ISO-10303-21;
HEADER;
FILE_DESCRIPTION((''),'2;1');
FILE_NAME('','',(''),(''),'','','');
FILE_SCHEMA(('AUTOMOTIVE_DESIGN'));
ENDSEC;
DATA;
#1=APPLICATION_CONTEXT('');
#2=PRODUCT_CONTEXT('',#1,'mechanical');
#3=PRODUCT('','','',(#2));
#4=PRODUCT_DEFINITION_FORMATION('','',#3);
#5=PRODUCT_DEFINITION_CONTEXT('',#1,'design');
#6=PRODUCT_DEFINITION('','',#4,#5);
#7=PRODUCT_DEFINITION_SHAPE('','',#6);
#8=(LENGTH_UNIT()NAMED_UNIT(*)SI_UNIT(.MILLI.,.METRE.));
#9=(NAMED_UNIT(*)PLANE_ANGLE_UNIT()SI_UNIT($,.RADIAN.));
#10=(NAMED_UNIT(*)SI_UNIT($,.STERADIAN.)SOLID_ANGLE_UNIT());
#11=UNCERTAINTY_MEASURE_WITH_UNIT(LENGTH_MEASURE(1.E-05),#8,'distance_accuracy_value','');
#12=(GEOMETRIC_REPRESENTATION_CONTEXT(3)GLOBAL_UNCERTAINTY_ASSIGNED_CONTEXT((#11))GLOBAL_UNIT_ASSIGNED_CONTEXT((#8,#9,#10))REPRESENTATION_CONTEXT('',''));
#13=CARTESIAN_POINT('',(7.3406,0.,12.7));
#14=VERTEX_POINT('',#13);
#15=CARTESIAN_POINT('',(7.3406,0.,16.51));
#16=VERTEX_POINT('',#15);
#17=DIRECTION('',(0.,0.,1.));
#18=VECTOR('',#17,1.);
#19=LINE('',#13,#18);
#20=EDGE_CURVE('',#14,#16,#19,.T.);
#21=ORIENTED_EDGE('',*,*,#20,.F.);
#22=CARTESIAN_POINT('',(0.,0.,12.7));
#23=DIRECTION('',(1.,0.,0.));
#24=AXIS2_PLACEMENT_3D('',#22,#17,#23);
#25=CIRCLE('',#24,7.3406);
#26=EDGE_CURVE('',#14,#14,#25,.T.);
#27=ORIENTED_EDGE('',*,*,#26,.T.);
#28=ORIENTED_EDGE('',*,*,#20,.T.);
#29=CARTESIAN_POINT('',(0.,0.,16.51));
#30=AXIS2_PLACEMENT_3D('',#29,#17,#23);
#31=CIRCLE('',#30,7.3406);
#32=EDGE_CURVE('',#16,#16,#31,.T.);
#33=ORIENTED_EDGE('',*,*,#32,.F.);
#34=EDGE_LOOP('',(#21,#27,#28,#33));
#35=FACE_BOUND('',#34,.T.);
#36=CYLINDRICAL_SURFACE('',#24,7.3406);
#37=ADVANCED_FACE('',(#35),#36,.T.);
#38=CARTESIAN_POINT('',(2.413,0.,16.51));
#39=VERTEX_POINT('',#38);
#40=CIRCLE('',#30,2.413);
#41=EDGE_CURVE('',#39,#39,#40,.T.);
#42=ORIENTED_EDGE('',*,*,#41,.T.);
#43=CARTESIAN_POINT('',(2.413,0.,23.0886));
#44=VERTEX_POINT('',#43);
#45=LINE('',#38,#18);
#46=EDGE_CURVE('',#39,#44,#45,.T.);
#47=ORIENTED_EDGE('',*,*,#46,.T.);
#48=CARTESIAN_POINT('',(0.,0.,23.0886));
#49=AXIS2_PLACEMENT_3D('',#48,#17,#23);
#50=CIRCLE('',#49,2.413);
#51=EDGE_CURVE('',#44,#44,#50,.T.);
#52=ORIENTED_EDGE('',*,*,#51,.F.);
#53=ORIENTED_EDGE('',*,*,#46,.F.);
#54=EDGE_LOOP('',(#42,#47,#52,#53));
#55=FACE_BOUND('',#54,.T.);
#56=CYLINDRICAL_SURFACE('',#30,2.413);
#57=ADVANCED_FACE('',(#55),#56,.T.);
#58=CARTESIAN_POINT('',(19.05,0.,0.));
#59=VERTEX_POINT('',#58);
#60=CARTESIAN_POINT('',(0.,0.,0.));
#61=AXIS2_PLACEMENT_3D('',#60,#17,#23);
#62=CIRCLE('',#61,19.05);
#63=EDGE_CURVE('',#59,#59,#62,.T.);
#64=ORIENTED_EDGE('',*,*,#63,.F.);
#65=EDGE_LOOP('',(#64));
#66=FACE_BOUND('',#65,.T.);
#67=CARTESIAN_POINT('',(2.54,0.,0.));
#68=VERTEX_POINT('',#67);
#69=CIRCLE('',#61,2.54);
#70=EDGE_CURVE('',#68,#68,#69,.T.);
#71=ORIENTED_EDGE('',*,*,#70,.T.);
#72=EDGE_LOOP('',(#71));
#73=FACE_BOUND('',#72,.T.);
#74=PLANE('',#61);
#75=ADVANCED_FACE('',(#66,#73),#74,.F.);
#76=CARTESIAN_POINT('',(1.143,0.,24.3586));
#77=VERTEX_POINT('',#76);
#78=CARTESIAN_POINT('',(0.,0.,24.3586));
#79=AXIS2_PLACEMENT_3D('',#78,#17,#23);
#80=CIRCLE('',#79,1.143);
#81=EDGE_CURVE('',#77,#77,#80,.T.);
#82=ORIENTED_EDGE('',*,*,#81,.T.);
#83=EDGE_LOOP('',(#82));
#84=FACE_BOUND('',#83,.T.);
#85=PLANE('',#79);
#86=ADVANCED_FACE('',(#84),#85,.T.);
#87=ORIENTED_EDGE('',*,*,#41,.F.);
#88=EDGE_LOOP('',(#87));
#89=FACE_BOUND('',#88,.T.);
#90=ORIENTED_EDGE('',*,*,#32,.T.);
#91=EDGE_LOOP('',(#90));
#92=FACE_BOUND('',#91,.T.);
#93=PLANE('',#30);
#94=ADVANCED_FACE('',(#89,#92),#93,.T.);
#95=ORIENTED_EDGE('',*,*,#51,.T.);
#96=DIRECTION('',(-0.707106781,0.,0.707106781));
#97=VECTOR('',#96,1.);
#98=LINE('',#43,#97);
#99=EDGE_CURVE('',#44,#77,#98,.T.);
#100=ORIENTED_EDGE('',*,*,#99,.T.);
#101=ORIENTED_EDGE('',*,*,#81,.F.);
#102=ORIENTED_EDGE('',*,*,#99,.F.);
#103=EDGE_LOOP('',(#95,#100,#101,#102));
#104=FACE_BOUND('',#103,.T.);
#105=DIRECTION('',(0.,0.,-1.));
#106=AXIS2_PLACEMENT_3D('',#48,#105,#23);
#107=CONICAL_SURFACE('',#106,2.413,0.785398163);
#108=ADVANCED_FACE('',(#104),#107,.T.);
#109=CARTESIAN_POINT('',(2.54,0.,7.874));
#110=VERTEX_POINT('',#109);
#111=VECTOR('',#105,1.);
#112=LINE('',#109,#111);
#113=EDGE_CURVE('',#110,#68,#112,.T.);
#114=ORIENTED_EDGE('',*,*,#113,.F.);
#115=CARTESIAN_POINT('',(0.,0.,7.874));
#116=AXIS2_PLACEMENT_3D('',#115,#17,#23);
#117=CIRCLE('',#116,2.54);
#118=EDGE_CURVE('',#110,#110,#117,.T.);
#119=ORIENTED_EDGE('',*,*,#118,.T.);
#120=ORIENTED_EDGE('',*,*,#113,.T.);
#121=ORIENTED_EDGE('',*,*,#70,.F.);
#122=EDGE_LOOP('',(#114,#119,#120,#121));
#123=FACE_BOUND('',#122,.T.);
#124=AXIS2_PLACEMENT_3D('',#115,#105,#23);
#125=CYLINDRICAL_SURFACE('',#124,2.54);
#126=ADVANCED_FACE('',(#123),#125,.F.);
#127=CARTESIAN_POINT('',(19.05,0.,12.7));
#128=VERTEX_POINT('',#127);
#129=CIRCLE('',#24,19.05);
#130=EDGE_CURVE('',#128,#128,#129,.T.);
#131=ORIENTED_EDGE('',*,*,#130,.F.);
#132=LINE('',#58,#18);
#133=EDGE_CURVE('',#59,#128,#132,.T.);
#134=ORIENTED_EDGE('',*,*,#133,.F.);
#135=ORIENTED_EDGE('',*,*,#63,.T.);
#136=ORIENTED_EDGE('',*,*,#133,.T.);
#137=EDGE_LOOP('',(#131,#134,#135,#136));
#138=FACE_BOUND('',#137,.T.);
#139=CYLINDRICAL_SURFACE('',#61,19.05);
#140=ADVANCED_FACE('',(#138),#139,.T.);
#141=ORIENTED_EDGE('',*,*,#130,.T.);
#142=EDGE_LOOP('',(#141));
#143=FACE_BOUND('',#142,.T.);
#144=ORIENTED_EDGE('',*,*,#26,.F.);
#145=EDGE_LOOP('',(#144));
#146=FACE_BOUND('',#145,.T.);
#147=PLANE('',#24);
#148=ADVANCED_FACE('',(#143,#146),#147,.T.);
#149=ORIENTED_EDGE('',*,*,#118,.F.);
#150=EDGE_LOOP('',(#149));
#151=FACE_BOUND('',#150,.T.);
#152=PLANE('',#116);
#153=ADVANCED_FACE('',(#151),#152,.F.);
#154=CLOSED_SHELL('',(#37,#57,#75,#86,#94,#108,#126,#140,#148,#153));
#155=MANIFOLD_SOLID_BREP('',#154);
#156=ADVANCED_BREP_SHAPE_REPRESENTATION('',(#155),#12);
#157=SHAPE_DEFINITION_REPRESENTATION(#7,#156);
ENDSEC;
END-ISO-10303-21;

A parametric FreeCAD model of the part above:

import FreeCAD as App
import Part
import Sketcher
from FreeCAD import Vector
Q = App.Units.Quantity


def edges_at(feature, points):
    """Names of the edges that pass closest to the given points."""
    edges = feature.Shape.Edges
    near = lambda p: min(range(len(edges)), key=lambda i: edges[i].distToShape(Part.Vertex(*p))[0])
    return sorted({f"Edge{near(p) + 1}" for p in points})


def add_polygon(sketch, points):
    """Adds a closed chain of lines whose ends are joined by coincident constraints."""
    first, n = sketch.GeometryCount, len(points)
    for a, b in zip(points, points[1:] + points[:1]):
        sketch.addGeometry(Part.LineSegment(App.Vector(*a, 0), App.Vector(*b, 0)), False)
    for i in range(n):
        sketch.addConstraint(Sketcher.Constraint("Coincident", first + i, 2, first + (i + 1) % n, 1))

doc = App.newDocument("Part")
body = doc.addObject("PartDesign::Body", "Body")

# Sketch on XZ plane
sketch1 = body.newObject("Sketcher::SketchObject", "Sketch")
sketch1.AttachmentSupport = (doc.getObject("XZ_Plane"), [""])
sketch1.MapMode = "FlatFace"
add_polygon(sketch1, [(2.5, 0), (19.1, 0), (19.1, 12.7), (7.3, 12.7), (7.3, 16.5), (2.4, 16.5), (2.4, 24.4), (0, 24.4), (0, 7.9), (2.5, 7.9)])  # lines 0-9
sketch1.addConstraint(Sketcher.Constraint("Horizontal", 0))
sketch1.addConstraint(Sketcher.Constraint("Vertical", 1))
sketch1.addConstraint(Sketcher.Constraint("Horizontal", 2))
sketch1.addConstraint(Sketcher.Constraint("Vertical", 3))
sketch1.addConstraint(Sketcher.Constraint("Horizontal", 4))
sketch1.addConstraint(Sketcher.Constraint("Vertical", 5))
sketch1.addConstraint(Sketcher.Constraint("Horizontal", 6))
sketch1.addConstraint(Sketcher.Constraint("Vertical", 7))
sketch1.addConstraint(Sketcher.Constraint("Horizontal", 8))
sketch1.addConstraint(Sketcher.Constraint("Vertical", 9))
sketch1.addConstraint(Sketcher.Constraint("PointOnObject", 0, 2, -1))
sketch1.addConstraint(Sketcher.Constraint("PointOnObject", 6, 2, -2))
sketch1.addConstraint(Sketcher.Constraint("DistanceX", 8, 1, 8, 2, Q("0.1 in")))
sketch1.addConstraint(Sketcher.Constraint("DistanceY", 1, 1, 1, 2, Q("0.5 in")))
sketch1.addConstraint(Sketcher.Constraint("DistanceX", 0, 1, 0, 2, Q("0.65 in")))
sketch1.addConstraint(Sketcher.Constraint("DistanceY", 3, 1, 3, 2, Q("0.15 in")))
sketch1.addConstraint(Sketcher.Constraint("DistanceY", 9, 2, 9, 1, Q("0.31 in")))
sketch1.addConstraint(Sketcher.Constraint("DistanceX", 2, 2, 2, 1, Q("0.461 in")))
sketch1.addConstraint(Sketcher.Constraint("DistanceX", 4, 2, 4, 1, Q("0.194 in")))
sketch1.addConstraint(Sketcher.Constraint("DistanceY", 5, 1, 5, 2, Q("0.309 in")))
revolution = body.newObject("PartDesign::Revolution", "Revolution")
revolution.Profile = sketch1
revolution.ReferenceAxis = (sketch1, ["V_Axis"])
revolution.Angle = 360
doc.recompute()

chamfer = body.newObject("PartDesign::Chamfer", "Chamfer")
chamfer.Base = (revolution, edges_at(revolution, [(-2.413, 0, 24.359)]))
chamfer.Size = Q("0.05 in")

doc.recompute()
